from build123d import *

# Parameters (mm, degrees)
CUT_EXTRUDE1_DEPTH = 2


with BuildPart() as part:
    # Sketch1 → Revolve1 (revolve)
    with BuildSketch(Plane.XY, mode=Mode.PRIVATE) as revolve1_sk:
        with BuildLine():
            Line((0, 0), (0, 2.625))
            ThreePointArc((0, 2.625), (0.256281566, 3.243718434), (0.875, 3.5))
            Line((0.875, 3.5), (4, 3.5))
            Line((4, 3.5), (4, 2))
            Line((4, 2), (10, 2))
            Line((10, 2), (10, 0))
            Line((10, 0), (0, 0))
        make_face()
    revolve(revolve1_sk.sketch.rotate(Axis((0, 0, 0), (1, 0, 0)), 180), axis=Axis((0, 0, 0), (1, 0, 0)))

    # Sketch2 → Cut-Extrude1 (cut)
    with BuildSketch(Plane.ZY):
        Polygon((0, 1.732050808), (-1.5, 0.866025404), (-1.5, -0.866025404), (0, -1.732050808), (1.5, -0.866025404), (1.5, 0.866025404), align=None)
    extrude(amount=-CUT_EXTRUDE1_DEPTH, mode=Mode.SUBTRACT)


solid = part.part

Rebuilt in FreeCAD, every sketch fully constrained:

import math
import FreeCAD as App
import Part
import Sketcher
from FreeCAD import Vector
Q = App.Units.Quantity

doc = App.newDocument("Part")
body = doc.addObject("PartDesign::Body", "Body")

sketch1 = body.newObject("Sketcher::SketchObject", "Sketch")
sketch1.AttachmentSupport = (doc.getObject("XY_Plane"), [""])
sketch1.MapMode = "FlatFace"
sketch1.addGeometry([
    Part.LineSegment(Vector(0, 2.6, 0), Vector(0, 0, 0)),
    Part.LineSegment(Vector(0, 0, 0), Vector(10, 0, 0)),
    Part.LineSegment(Vector(10, 0, 0), Vector(10, 2, 0)),
    Part.LineSegment(Vector(10, 2, 0), Vector(4, 2, 0)),
    Part.LineSegment(Vector(4, 2, 0), Vector(4, 3.5, 0)),
    Part.LineSegment(Vector(4, 3.5, 0), Vector(0.9, 3.5, 0)),
    Part.ArcOfCircle(Part.Circle(Vector(0.9, 2.6, 0), Vector(0, 0, 1), 0.9), math.radians(90), math.radians(180)),
], False)
sketch1.addConstraint([
    Sketcher.Constraint("Coincident", 0, 2, 1, 1),
    Sketcher.Constraint("Coincident", 1, 2, 2, 1),
    Sketcher.Constraint("Coincident", 2, 2, 3, 1),
    Sketcher.Constraint("Coincident", 3, 2, 4, 1),
    Sketcher.Constraint("Coincident", 4, 2, 5, 1),
    Sketcher.Constraint("Tangent", 5, 2, 6, 1),
    Sketcher.Constraint("Tangent", 6, 2, 0, 1),
    Sketcher.Constraint("Vertical", 0),
    Sketcher.Constraint("Horizontal", 1),
    Sketcher.Constraint("Vertical", 2),
    Sketcher.Constraint("Horizontal", 3),
    Sketcher.Constraint("Vertical", 4),
    Sketcher.Constraint("Horizontal", 5),
    Sketcher.Constraint("Coincident", 0, 2, -1, 1),
    Sketcher.Constraint("DistanceX", 1, 1, 1, 2, 10.0),
    Sketcher.Constraint("DistanceX", 3, 2, 3, 1, 6.0),
    Sketcher.Constraint("DistanceY", 2, 1, 2, 2, 2.0),
    Sketcher.Constraint("DistanceY", 4, 1, 4, 2, 1.5),
    Sketcher.Constraint("Radius", 6, 0.875),
])
revolution = body.newObject("PartDesign::Revolution", "Revolution")
revolution.Profile = sketch1
revolution.ReferenceAxis = (sketch1, ["H_Axis"])
revolution.Angle = 360

sketch2 = body.newObject("Sketcher::SketchObject", "Sketch001")
sketch2.AttachmentSupport = (doc.getObject("YZ_Plane"), [""])
sketch2.MapMode = "FlatFace"
sketch2.addGeometry([
    Part.LineSegment(Vector(1.7, 0, 0), Vector(0.9, -1.5, 0)),
    Part.LineSegment(Vector(0.9, -1.5, 0), Vector(-0.9, -1.5, 0)),
    Part.LineSegment(Vector(-0.9, -1.5, 0), Vector(-1.7, 0, 0)),
    Part.LineSegment(Vector(-1.7, 0, 0), Vector(-0.9, 1.5, 0)),
    Part.LineSegment(Vector(-0.9, 1.5, 0), Vector(0.9, 1.5, 0)),
    Part.LineSegment(Vector(0.9, 1.5, 0), Vector(1.7, 0, 0)),
], False)
sketch2.addConstraint([
    Sketcher.Constraint("Coincident", 0, 2, 1, 1),
    Sketcher.Constraint("Coincident", 1, 2, 2, 1),
    Sketcher.Constraint("Coincident", 2, 2, 3, 1),
    Sketcher.Constraint("Coincident", 3, 2, 4, 1),
    Sketcher.Constraint("Coincident", 4, 2, 5, 1),
    Sketcher.Constraint("Coincident", 5, 2, 0, 1),
    Sketcher.Constraint("Horizontal", 1),
    Sketcher.Constraint("Horizontal", 4),
    Sketcher.Constraint("Symmetric", 0, 2, 3, 2, -1, 1),
    Sketcher.Constraint("Symmetric", 2, 2, 5, 2, -1, 1),
    Sketcher.Constraint("PointOnObject", 2, 2, -1),
    Sketcher.Constraint("Parallel", 2, 5),
    Sketcher.Constraint("Vertical", 1, 2, 3, 2),
    Sketcher.Constraint("Angle", 0, Q("-120 deg")),
    Sketcher.Constraint("DistanceY", 1, 2, 3, 2, 3.0),
    Sketcher.Constraint("DistanceX", 1, 2, 1, 1, 1.732051),
])
pocket1 = body.newObject("PartDesign::Pocket", "Pocket")
pocket1.Profile = sketch2
pocket1.Length = 2
pocket1.Reversed = True

doc.recompute()
